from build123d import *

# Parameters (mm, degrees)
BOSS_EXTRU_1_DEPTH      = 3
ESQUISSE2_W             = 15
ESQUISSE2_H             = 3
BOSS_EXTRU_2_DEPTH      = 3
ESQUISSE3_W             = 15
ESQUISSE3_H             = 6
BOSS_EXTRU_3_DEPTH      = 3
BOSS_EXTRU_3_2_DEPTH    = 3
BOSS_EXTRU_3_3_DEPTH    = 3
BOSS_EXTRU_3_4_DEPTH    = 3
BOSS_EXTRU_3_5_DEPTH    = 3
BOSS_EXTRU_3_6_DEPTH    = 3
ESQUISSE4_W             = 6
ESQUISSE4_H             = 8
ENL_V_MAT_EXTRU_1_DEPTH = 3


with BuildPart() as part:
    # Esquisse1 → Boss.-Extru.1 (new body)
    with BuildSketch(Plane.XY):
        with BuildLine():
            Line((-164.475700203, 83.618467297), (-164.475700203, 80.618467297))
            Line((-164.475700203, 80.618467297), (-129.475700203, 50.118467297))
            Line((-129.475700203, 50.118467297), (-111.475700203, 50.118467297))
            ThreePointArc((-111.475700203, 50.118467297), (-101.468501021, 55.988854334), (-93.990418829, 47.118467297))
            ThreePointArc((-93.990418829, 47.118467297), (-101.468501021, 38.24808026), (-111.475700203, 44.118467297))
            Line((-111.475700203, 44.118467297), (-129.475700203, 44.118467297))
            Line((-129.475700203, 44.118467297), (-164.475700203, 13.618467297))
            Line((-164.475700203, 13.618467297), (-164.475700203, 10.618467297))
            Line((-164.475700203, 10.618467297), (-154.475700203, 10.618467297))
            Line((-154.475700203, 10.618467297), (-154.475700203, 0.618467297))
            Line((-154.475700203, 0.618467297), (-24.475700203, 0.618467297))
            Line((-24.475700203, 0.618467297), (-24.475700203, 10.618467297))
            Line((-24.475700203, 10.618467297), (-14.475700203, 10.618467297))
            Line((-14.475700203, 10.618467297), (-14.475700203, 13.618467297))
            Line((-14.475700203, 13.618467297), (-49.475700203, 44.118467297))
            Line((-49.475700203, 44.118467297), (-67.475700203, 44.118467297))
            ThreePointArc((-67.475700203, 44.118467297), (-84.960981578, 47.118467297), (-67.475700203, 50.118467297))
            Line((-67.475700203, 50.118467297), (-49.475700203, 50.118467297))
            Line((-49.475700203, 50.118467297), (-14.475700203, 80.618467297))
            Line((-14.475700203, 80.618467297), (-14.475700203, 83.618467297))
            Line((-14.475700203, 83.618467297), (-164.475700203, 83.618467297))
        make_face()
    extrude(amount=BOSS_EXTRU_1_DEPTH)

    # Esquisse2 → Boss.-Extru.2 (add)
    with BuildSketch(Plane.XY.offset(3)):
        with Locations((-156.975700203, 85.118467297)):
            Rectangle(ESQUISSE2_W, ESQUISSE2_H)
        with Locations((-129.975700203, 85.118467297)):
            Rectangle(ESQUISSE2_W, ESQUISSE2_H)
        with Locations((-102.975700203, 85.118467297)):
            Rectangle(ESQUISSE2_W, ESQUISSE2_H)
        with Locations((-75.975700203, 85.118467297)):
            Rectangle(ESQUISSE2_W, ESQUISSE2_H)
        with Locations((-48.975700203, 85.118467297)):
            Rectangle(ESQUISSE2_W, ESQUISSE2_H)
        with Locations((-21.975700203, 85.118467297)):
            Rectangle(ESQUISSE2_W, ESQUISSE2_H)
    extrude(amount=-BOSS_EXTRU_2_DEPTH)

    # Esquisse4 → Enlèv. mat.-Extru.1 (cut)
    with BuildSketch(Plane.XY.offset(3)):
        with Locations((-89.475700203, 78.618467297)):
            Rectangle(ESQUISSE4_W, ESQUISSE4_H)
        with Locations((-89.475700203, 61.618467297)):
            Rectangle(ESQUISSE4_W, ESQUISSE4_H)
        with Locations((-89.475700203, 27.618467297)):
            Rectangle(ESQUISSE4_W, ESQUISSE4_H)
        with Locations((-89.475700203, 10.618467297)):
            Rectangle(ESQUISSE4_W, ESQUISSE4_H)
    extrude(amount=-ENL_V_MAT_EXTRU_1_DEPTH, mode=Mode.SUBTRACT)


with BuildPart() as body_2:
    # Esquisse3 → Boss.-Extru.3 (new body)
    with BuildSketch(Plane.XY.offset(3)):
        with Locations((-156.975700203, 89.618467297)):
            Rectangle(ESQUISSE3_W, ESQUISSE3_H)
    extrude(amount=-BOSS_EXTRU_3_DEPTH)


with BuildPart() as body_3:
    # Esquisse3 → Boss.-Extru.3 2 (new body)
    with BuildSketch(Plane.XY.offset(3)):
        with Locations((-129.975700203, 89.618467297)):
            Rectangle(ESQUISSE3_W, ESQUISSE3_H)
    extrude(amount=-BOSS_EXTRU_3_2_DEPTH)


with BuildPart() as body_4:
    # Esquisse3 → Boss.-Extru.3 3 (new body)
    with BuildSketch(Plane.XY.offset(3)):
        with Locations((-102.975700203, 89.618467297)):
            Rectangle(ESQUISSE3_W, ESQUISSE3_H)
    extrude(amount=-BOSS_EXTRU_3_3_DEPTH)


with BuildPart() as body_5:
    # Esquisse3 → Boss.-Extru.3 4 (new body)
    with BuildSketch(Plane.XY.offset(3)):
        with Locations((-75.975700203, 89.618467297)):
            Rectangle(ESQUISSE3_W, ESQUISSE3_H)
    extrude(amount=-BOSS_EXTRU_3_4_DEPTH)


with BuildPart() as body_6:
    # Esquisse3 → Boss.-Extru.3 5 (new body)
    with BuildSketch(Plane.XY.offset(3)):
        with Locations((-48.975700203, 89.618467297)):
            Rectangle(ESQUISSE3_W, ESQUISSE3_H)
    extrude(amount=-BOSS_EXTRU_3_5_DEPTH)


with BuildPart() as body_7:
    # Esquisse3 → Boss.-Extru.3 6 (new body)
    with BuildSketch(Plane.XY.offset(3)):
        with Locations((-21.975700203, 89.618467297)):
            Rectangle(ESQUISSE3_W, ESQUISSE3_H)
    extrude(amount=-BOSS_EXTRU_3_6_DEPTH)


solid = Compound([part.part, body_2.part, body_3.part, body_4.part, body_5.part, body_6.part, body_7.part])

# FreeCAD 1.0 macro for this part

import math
import FreeCAD as App
import Part
import Sketcher

V = App.Vector
Q = App.Units.Quantity


def add_polygon(sketch, points):
    """Adds a closed chain of lines whose ends are joined by coincident constraints."""
    first, n = sketch.GeometryCount, len(points)
    for a, b in zip(points, points[1:] + points[:1]):
        sketch.addGeometry(Part.LineSegment(App.Vector(*a, 0), App.Vector(*b, 0)), False)
    for i in range(n):
        sketch.addConstraint(Sketcher.Constraint("Coincident", first + i, 2, first + (i + 1) % n, 1))

doc = App.newDocument("Part")
body = doc.addObject("PartDesign::Body", "Body")

# Sketch on XY plane
sketch1 = body.newObject("Sketcher::SketchObject", "Sketch")
sketch1.AttachmentSupport = (doc.getObject("XY_Plane"), [""])
sketch1.MapMode = "FlatFace"
sketch1.addGeometry(Part.LineSegment(V(-164.5, 83.6, 0), V(-164.5, 80.6, 0)), False)
sketch1.addGeometry(Part.LineSegment(V(-164.5, 80.6, 0), V(-129.5, 50.1, 0)), False)
sketch1.addGeometry(Part.LineSegment(V(-129.5, 50.1, 0), V(-111.5, 50.1, 0)), False)
sketch1.addGeometry(Part.ArcOfCircle(Part.Circle(V(-103, 47.1, 0), V(0, 0, 1), 9), math.radians(0), math.radians(161)), False)
sketch1.addGeometry(Part.ArcOfCircle(Part.Circle(V(-103, 47.1, 0), V(0, 0, 1), 9), math.radians(-161), math.radians(0)), False)
sketch1.addGeometry(Part.LineSegment(V(-111.5, 44.1, 0), V(-129.5, 44.1, 0)), False)
sketch1.addGeometry(Part.LineSegment(V(-129.5, 44.1, 0), V(-164.5, 13.6, 0)), False)
sketch1.addGeometry(Part.LineSegment(V(-164.5, 13.6, 0), V(-164.5, 10.6, 0)), False)
sketch1.addGeometry(Part.LineSegment(V(-164.5, 10.6, 0), V(-154.5, 10.6, 0)), False)
sketch1.addGeometry(Part.LineSegment(V(-154.5, 10.6, 0), V(-154.5, 0.6, 0)), False)
sketch1.addGeometry(Part.LineSegment(V(-154.5, 0.6, 0), V(-24.5, 0.6, 0)), False)
sketch1.addGeometry(Part.LineSegment(V(-24.5, 0.6, 0), V(-24.5, 10.6, 0)), False)
sketch1.addGeometry(Part.LineSegment(V(-24.5, 10.6, 0), V(-14.5, 10.6, 0)), False)
sketch1.addGeometry(Part.LineSegment(V(-14.5, 10.6, 0), V(-14.5, 13.6, 0)), False)
sketch1.addGeometry(Part.LineSegment(V(-14.5, 13.6, 0), V(-49.5, 44.1, 0)), False)
sketch1.addGeometry(Part.LineSegment(V(-49.5, 44.1, 0), V(-67.5, 44.1, 0)), False)
sketch1.addGeometry(Part.ArcOfCircle(Part.Circle(V(-76, 47.1, 0), V(0, 0, 1), 9), math.radians(19), math.radians(341)), False)
sketch1.addGeometry(Part.LineSegment(V(-67.5, 50.1, 0), V(-49.5, 50.1, 0)), False)
sketch1.addGeometry(Part.LineSegment(V(-49.5, 50.1, 0), V(-14.5, 80.6, 0)), False)
sketch1.addGeometry(Part.LineSegment(V(-14.5, 80.6, 0), V(-14.5, 83.6, 0)), False)
sketch1.addGeometry(Part.LineSegment(V(-14.5, 83.6, 0), V(-164.5, 83.6, 0)), False)
sketch1.addConstraint(Sketcher.Constraint("Coincident", 0, 2, 1, 1))
sketch1.addConstraint(Sketcher.Constraint("Coincident", 1, 2, 2, 1))
sketch1.addConstraint(Sketcher.Constraint("Coincident", 2, 2, 3, 2))
sketch1.addConstraint(Sketcher.Constraint("Tangent", 3, 1, 4, 2))
sketch1.addConstraint(Sketcher.Constraint("Coincident", 4, 1, 5, 1))
sketch1.addConstraint(Sketcher.Constraint("Coincident", 5, 2, 6, 1))
sketch1.addConstraint(Sketcher.Constraint("Coincident", 6, 2, 7, 1))
sketch1.addConstraint(Sketcher.Constraint("Coincident", 7, 2, 8, 1))
sketch1.addConstraint(Sketcher.Constraint("Coincident", 8, 2, 9, 1))
sketch1.addConstraint(Sketcher.Constraint("Coincident", 9, 2, 10, 1))
sketch1.addConstraint(Sketcher.Constraint("Coincident", 10, 2, 11, 1))
sketch1.addConstraint(Sketcher.Constraint("Coincident", 11, 2, 12, 1))
sketch1.addConstraint(Sketcher.Constraint("Coincident", 12, 2, 13, 1))
sketch1.addConstraint(Sketcher.Constraint("Coincident", 13, 2, 14, 1))
sketch1.addConstraint(Sketcher.Constraint("Coincident", 14, 2, 15, 1))
sketch1.addConstraint(Sketcher.Constraint("Coincident", 15, 2, 16, 2))
sketch1.addConstraint(Sketcher.Constraint("Coincident", 16, 1, 17, 1))
sketch1.addConstraint(Sketcher.Constraint("Coincident", 17, 2, 18, 1))
sketch1.addConstraint(Sketcher.Constraint("Coincident", 18, 2, 19, 1))
sketch1.addConstraint(Sketcher.Constraint("Coincident", 19, 2, 20, 1))
sketch1.addConstraint(Sketcher.Constraint("Coincident", 20, 2, 0, 1))
sketch1.addConstraint(Sketcher.Constraint("Vertical", 0))
sketch1.addConstraint(Sketcher.Constraint("Horizontal", 2))
sketch1.addConstraint(Sketcher.Constraint("Horizontal", 5))
sketch1.addConstraint(Sketcher.Constraint("Vertical", 7))
sketch1.addConstraint(Sketcher.Constraint("Horizontal", 8))
sketch1.addConstraint(Sketcher.Constraint("Vertical", 9))
sketch1.addConstraint(Sketcher.Constraint("Horizontal", 10))
sketch1.addConstraint(Sketcher.Constraint("Vertical", 11))
sketch1.addConstraint(Sketcher.Constraint("Horizontal", 12))
sketch1.addConstraint(Sketcher.Constraint("Vertical", 13))
sketch1.addConstraint(Sketcher.Constraint("Horizontal", 15))
sketch1.addConstraint(Sketcher.Constraint("Horizontal", 17))
sketch1.addConstraint(Sketcher.Constraint("Vertical", 19))
sketch1.addConstraint(Sketcher.Constraint("Horizontal", 20))
sketch1.addConstraint(Sketcher.Constraint("Equal", 3, 4))
sketch1.addConstraint(Sketcher.Constraint("Equal", 4, 16))
sketch1.addConstraint(Sketcher.Constraint("Parallel", 1, 14))
sketch1.addConstraint(Sketcher.Constraint("Parallel", 6, 18))
sketch1.addConstraint(Sketcher.Constraint("Horizontal", 4, 3, 16, 3))
sketch1.addConstraint(Sketcher.Constraint("Horizontal", 16, 3, 3, 1))
sketch1.addConstraint(Sketcher.Constraint("Horizontal", 8, 2, 11, 2))
sketch1.addConstraint(Sketcher.Constraint("Horizontal", 6, 2, 13, 2))
sketch1.addConstraint(Sketcher.Constraint("Horizontal", 5, 2, 14, 2))
sketch1.addConstraint(Sketcher.Constraint("Horizontal", 2, 2, 16, 1))
sketch1.addConstraint(Sketcher.Constraint("Horizontal", 0, 2, 18, 2))
sketch1.addConstraint(Sketcher.Constraint("Vertical", 2, 2, 4, 1))
sketch1.addConstraint(Sketcher.Constraint("Vertical", 1, 2, 5, 2))
sketch1.addConstraint(Sketcher.Constraint("Vertical", 0, 2, 6, 2))
sketch1.addConstraint(Sketcher.Constraint("Vertical", 14, 2, 17, 2))
sketch1.addConstraint(Sketcher.Constraint("Vertical", 13, 2, 18, 2))
sketch1.addConstraint(Sketcher.Constraint("Equal", 8, 12))
sketch1.addConstraint(Sketcher.Constraint("Equal", 5, 15))
sketch1.addConstraint(Sketcher.Constraint("Equal", 0, 7))
sketch1.addConstraint(Sketcher.Constraint("Equal", 12, 9))
sketch1.addConstraint(Sketcher.Constraint("Radius", 3, Q("9 mm")))
sketch1.addConstraint(Sketcher.Constraint("DistanceX", 2, 1, 2, 2, Q("18 mm")))
sketch1.addConstraint(Sketcher.Constraint("DistanceX", 8, 1, 8, 2, Q("10 mm")))
sketch1.addConstraint(Sketcher.Constraint("DistanceX", 10, 1, 10, 2, Q("130 mm")))
sketch1.addConstraint(Sketcher.Constraint("DistanceY", 0, 2, 0, 1, Q("3 mm")))
sketch1.addConstraint(Sketcher.Constraint("DistanceY", 3, 3, 1, 2, Q("3 mm")))
sketch1.addConstraint(Sketcher.Constraint("DistanceX", 0, 2, 1, 2, Q("35 mm")))
sketch1.addConstraint(Sketcher.Constraint("DistanceY", 6, 2, 0, 2, Q("67 mm")))
sketch1.addConstraint(Sketcher.Constraint("DistanceX", 0, 2, -1, 1, Q("164.4757 mm")))
sketch1.addConstraint(Sketcher.Constraint("DistanceY", -1, 1, 3, 3, Q("47.118467 mm")))
pad1 = body.newObject("PartDesign::Pad", "Pad")
pad1.Profile = sketch1
pad1.Length = 3

# Sketch on XY plane
sketch2 = body.newObject("Sketcher::SketchObject", "Sketch001")
sketch2.AttachmentSupport = (doc.getObject("XY_Plane"), [""])
sketch2.MapMode = "FlatFace"
sketch2.AttachmentOffset = App.Placement(V(0, 0, 3), App.Rotation())
add_polygon(sketch2, [(-164.5, 86.6), (-164.5, 83.6), (-149.5, 83.6), (-149.5, 86.6)])  # lines 0-3
add_polygon(sketch2, [(-137.5, 86.6), (-137.5, 83.6), (-122.5, 83.6), (-122.5, 86.6)])  # lines 4-7
add_polygon(sketch2, [(-110.5, 86.6), (-110.5, 83.6), (-95.5, 83.6), (-95.5, 86.6)])  # lines 8-11
add_polygon(sketch2, [(-83.5, 86.6), (-83.5, 83.6), (-68.5, 83.6), (-68.5, 86.6)])  # lines 12-15
add_polygon(sketch2, [(-56.5, 86.6), (-56.5, 83.6), (-41.5, 83.6), (-41.5, 86.6)])  # lines 16-19
add_polygon(sketch2, [(-29.5, 86.6), (-29.5, 83.6), (-14.5, 83.6), (-14.5, 86.6)])  # lines 20-23
sketch2.addConstraint(Sketcher.Constraint("Vertical", 0))
sketch2.addConstraint(Sketcher.Constraint("Horizontal", 1))
sketch2.addConstraint(Sketcher.Constraint("Vertical", 2))
sketch2.addConstraint(Sketcher.Constraint("Horizontal", 3))
sketch2.addConstraint(Sketcher.Constraint("Vertical", 4))
sketch2.addConstraint(Sketcher.Constraint("Horizontal", 5))
sketch2.addConstraint(Sketcher.Constraint("Vertical", 6))
sketch2.addConstraint(Sketcher.Constraint("Horizontal", 7))
sketch2.addConstraint(Sketcher.Constraint("Vertical", 8))
sketch2.addConstraint(Sketcher.Constraint("Horizontal", 9))
sketch2.addConstraint(Sketcher.Constraint("Vertical", 10))
sketch2.addConstraint(Sketcher.Constraint("Horizontal", 11))
sketch2.addConstraint(Sketcher.Constraint("Vertical", 12))
sketch2.addConstraint(Sketcher.Constraint("Horizontal", 13))
sketch2.addConstraint(Sketcher.Constraint("Vertical", 14))
sketch2.addConstraint(Sketcher.Constraint("Horizontal", 15))
sketch2.addConstraint(Sketcher.Constraint("Vertical", 16))
sketch2.addConstraint(Sketcher.Constraint("Horizontal", 17))
sketch2.addConstraint(Sketcher.Constraint("Vertical", 18))
sketch2.addConstraint(Sketcher.Constraint("Horizontal", 19))
sketch2.addConstraint(Sketcher.Constraint("Vertical", 20))
sketch2.addConstraint(Sketcher.Constraint("Horizontal", 21))
sketch2.addConstraint(Sketcher.Constraint("Vertical", 22))
sketch2.addConstraint(Sketcher.Constraint("Horizontal", 23))
sketch2.addConstraint(Sketcher.Constraint("Horizontal", 1, 2, 4, 2))
sketch2.addConstraint(Sketcher.Constraint("Horizontal", 3, 2, 6, 2))
sketch2.addConstraint(Sketcher.Constraint("Horizontal", 5, 2, 8, 2))
sketch2.addConstraint(Sketcher.Constraint("Horizontal", 7, 2, 10, 2))
sketch2.addConstraint(Sketcher.Constraint("Horizontal", 9, 2, 12, 2))
sketch2.addConstraint(Sketcher.Constraint("Horizontal", 11, 2, 14, 2))
sketch2.addConstraint(Sketcher.Constraint("Horizontal", 13, 2, 16, 2))
sketch2.addConstraint(Sketcher.Constraint("Horizontal", 15, 2, 18, 2))
sketch2.addConstraint(Sketcher.Constraint("Horizontal", 17, 2, 20, 2))
sketch2.addConstraint(Sketcher.Constraint("Horizontal", 19, 2, 22, 2))
sketch2.addConstraint(Sketcher.Constraint("Equal", 3, 5))
sketch2.addConstraint(Sketcher.Constraint("Equal", 7, 9))
sketch2.addConstraint(Sketcher.Constraint("Equal", 11, 13))
sketch2.addConstraint(Sketcher.Constraint("Equal", 15, 17))
sketch2.addConstraint(Sketcher.Constraint("Equal", 19, 21))
sketch2.addConstraint(Sketcher.Constraint("DistanceX", 1, 1, 1, 2, Q("15 mm")))
sketch2.addConstraint(Sketcher.Constraint("DistanceY", 0, 2, 0, 1, Q("3 mm")))
sketch2.addConstraint(Sketcher.Constraint("DistanceX", 1, 2, 4, 2, Q("12 mm")))
sketch2.addConstraint(Sketcher.Constraint("DistanceX", 5, 2, 8, 2, Q("12 mm")))
sketch2.addConstraint(Sketcher.Constraint("DistanceX", 9, 2, 12, 2, Q("12 mm")))
sketch2.addConstraint(Sketcher.Constraint("DistanceX", 13, 2, 16, 2, Q("12 mm")))
sketch2.addConstraint(Sketcher.Constraint("DistanceX", 17, 2, 20, 2, Q("12 mm")))
sketch2.addConstraint(Sketcher.Constraint("DistanceX", 0, 2, -1, 1, Q("164.4757 mm")))
sketch2.addConstraint(Sketcher.Constraint("DistanceY", -1, 1, 0, 2, Q("83.618467 mm")))
pad2 = body.newObject("PartDesign::Pad", "Pad001")
pad2.Profile = sketch2
pad2.Length = 3
pad2.Reversed = True

# Sketch on XY plane
sketch3 = body.newObject("Sketcher::SketchObject", "Sketch002")
sketch3.AttachmentSupport = (doc.getObject("XY_Plane"), [""])
sketch3.MapMode = "FlatFace"
sketch3.AttachmentOffset = App.Placement(V(0, 0, 3), App.Rotation())
add_polygon(sketch3, [(-92, 83), (-92, 75), (-86, 75), (-86, 83)])  # lines 0-3
add_polygon(sketch3, [(-92, 66), (-92, 58), (-86, 58), (-86, 66)])  # lines 4-7
add_polygon(sketch3, [(-92, 32), (-92, 24), (-86, 24), (-86, 32)])  # lines 8-11
add_polygon(sketch3, [(-92, 15), (-92, 7), (-86, 7), (-86, 15)])  # lines 12-15
sketch3.addConstraint(Sketcher.Constraint("Vertical", 0))
sketch3.addConstraint(Sketcher.Constraint("Horizontal", 1))
sketch3.addConstraint(Sketcher.Constraint("Vertical", 2))
sketch3.addConstraint(Sketcher.Constraint("Horizontal", 3))
sketch3.addConstraint(Sketcher.Constraint("Vertical", 4))
sketch3.addConstraint(Sketcher.Constraint("Horizontal", 5))
sketch3.addConstraint(Sketcher.Constraint("Vertical", 6))
sketch3.addConstraint(Sketcher.Constraint("Horizontal", 7))
sketch3.addConstraint(Sketcher.Constraint("Vertical", 8))
sketch3.addConstraint(Sketcher.Constraint("Horizontal", 9))
sketch3.addConstraint(Sketcher.Constraint("Vertical", 10))
sketch3.addConstraint(Sketcher.Constraint("Horizontal", 11))
sketch3.addConstraint(Sketcher.Constraint("Vertical", 12))
sketch3.addConstraint(Sketcher.Constraint("Horizontal", 13))
sketch3.addConstraint(Sketcher.Constraint("Vertical", 14))
sketch3.addConstraint(Sketcher.Constraint("Horizontal", 15))
sketch3.addConstraint(Sketcher.Constraint("Vertical", 3, 2, 4, 2))
sketch3.addConstraint(Sketcher.Constraint("Vertical", 2, 2, 5, 2))
sketch3.addConstraint(Sketcher.Constraint("Vertical", 7, 2, 8, 2))
sketch3.addConstraint(Sketcher.Constraint("Vertical", 6, 2, 9, 2))
sketch3.addConstraint(Sketcher.Constraint("Vertical", 11, 2, 12, 2))
sketch3.addConstraint(Sketcher.Constraint("Vertical", 10, 2, 13, 2))
sketch3.addConstraint(Sketcher.Constraint("Equal", 2, 4))
sketch3.addConstraint(Sketcher.Constraint("Equal", 6, 8))
sketch3.addConstraint(Sketcher.Constraint("Equal", 10, 12))
sketch3.addConstraint(Sketcher.Constraint("DistanceX", 1, 1, 1, 2, Q("6 mm")))
sketch3.addConstraint(Sketcher.Constraint("DistanceY", 0, 2, 0, 1, Q("8 mm")))
sketch3.addConstraint(Sketcher.Constraint("DistanceY", 4, 2, 0, 2, Q("17 mm")))
sketch3.addConstraint(Sketcher.Constraint("DistanceY", 8, 2, 4, 2, Q("34 mm")))
sketch3.addConstraint(Sketcher.Constraint("DistanceY", 12, 2, 8, 2, Q("17 mm")))
sketch3.addConstraint(Sketcher.Constraint("DistanceX", 0, 2, -1, 1, Q("92.4757 mm")))
sketch3.addConstraint(Sketcher.Constraint("DistanceY", -1, 1, 0, 2, Q("74.618467 mm")))
pocket1 = body.newObject("PartDesign::Pocket", "Pocket")
pocket1.Profile = sketch3
pocket1.Length = 3
body2 = doc.addObject("PartDesign::Body", "Body001")

# Sketch on XY plane
sketch4 = body2.newObject("Sketcher::SketchObject", "Sketch003")
sketch4.AttachmentSupport = (doc.getObject("XY_Plane001"), [""])
sketch4.MapMode = "FlatFace"
sketch4.AttachmentOffset = App.Placement(V(0, 0, 3), App.Rotation())
add_polygon(sketch4, [(-164, 93), (-164, 87), (-149, 87), (-149, 93)])  # lines 0-3
sketch4.addConstraint(Sketcher.Constraint("Vertical", 0))
sketch4.addConstraint(Sketcher.Constraint("Horizontal", 1))
sketch4.addConstraint(Sketcher.Constraint("Vertical", 2))
sketch4.addConstraint(Sketcher.Constraint("Horizontal", 3))
sketch4.addConstraint(Sketcher.Constraint("DistanceX", 1, 1, 1, 2, Q("15 mm")))
sketch4.addConstraint(Sketcher.Constraint("DistanceY", 0, 2, 0, 1, Q("6 mm")))
sketch4.addConstraint(Sketcher.Constraint("DistanceX", 0, 2, -1, 1, Q("164.4757 mm")))
sketch4.addConstraint(Sketcher.Constraint("DistanceY", -1, 1, 0, 2, Q("86.618467 mm")))
pad3 = body2.newObject("PartDesign::Pad", "Pad002")
pad3.Profile = sketch4
pad3.Length = 3
pad3.Reversed = True
body3 = doc.addObject("PartDesign::Body", "Body002")

# Sketch on XY plane
sketch5 = body3.newObject("Sketcher::SketchObject", "Sketch004")
sketch5.AttachmentSupport = (doc.getObject("XY_Plane002"), [""])
sketch5.MapMode = "FlatFace"
sketch5.AttachmentOffset = App.Placement(V(0, 0, 3), App.Rotation())
add_polygon(sketch5, [(-137, 93), (-137, 87), (-122, 87), (-122, 93)])  # lines 0-3
sketch5.addConstraint(Sketcher.Constraint("Vertical", 0))
sketch5.addConstraint(Sketcher.Constraint("Horizontal", 1))
sketch5.addConstraint(Sketcher.Constraint("Vertical", 2))
sketch5.addConstraint(Sketcher.Constraint("Horizontal", 3))
sketch5.addConstraint(Sketcher.Constraint("DistanceX", 1, 1, 1, 2, Q("15 mm")))
sketch5.addConstraint(Sketcher.Constraint("DistanceY", 0, 2, 0, 1, Q("6 mm")))
sketch5.addConstraint(Sketcher.Constraint("DistanceX", 0, 2, -1, 1, Q("137.4757 mm")))
sketch5.addConstraint(Sketcher.Constraint("DistanceY", -1, 1, 0, 2, Q("86.618467 mm")))
pad4 = body3.newObject("PartDesign::Pad", "Pad003")
pad4.Profile = sketch5
pad4.Length = 3
pad4.Reversed = True
body4 = doc.addObject("PartDesign::Body", "Body003")

# Sketch on XY plane
sketch6 = body4.newObject("Sketcher::SketchObject", "Sketch005")
sketch6.AttachmentSupport = (doc.getObject("XY_Plane003"), [""])
sketch6.MapMode = "FlatFace"
sketch6.AttachmentOffset = App.Placement(V(0, 0, 3), App.Rotation())
add_polygon(sketch6, [(-110, 93), (-110, 87), (-95, 87), (-95, 93)])  # lines 0-3
sketch6.addConstraint(Sketcher.Constraint("Vertical", 0))
sketch6.addConstraint(Sketcher.Constraint("Horizontal", 1))
sketch6.addConstraint(Sketcher.Constraint("Vertical", 2))
sketch6.addConstraint(Sketcher.Constraint("Horizontal", 3))
sketch6.addConstraint(Sketcher.Constraint("DistanceX", 1, 1, 1, 2, Q("15 mm")))
sketch6.addConstraint(Sketcher.Constraint("DistanceY", 0, 2, 0, 1, Q("6 mm")))
sketch6.addConstraint(Sketcher.Constraint("DistanceX", 0, 2, -1, 1, Q("110.4757 mm")))
sketch6.addConstraint(Sketcher.Constraint("DistanceY", -1, 1, 0, 2, Q("86.618467 mm")))
pad5 = body4.newObject("PartDesign::Pad", "Pad004")
pad5.Profile = sketch6
pad5.Length = 3
pad5.Reversed = True
body5 = doc.addObject("PartDesign::Body", "Body004")

# Sketch on XY plane
sketch7 = body5.newObject("Sketcher::SketchObject", "Sketch006")
sketch7.AttachmentSupport = (doc.getObject("XY_Plane004"), [""])
sketch7.MapMode = "FlatFace"
sketch7.AttachmentOffset = App.Placement(V(0, 0, 3), App.Rotation())
add_polygon(sketch7, [(-83, 93), (-83, 87), (-68, 87), (-68, 93)])  # lines 0-3
sketch7.addConstraint(Sketcher.Constraint("Vertical", 0))
sketch7.addConstraint(Sketcher.Constraint("Horizontal", 1))
sketch7.addConstraint(Sketcher.Constraint("Vertical", 2))
sketch7.addConstraint(Sketcher.Constraint("Horizontal", 3))
sketch7.addConstraint(Sketcher.Constraint("DistanceX", 1, 1, 1, 2, Q("15 mm")))
sketch7.addConstraint(Sketcher.Constraint("DistanceY", 0, 2, 0, 1, Q("6 mm")))
sketch7.addConstraint(Sketcher.Constraint("DistanceX", 0, 2, -1, 1, Q("83.4757 mm")))
sketch7.addConstraint(Sketcher.Constraint("DistanceY", -1, 1, 0, 2, Q("86.618467 mm")))
pad6 = body5.newObject("PartDesign::Pad", "Pad005")
pad6.Profile = sketch7
pad6.Length = 3
pad6.Reversed = True
body6 = doc.addObject("PartDesign::Body", "Body005")

# Sketch on XY plane
sketch8 = body6.newObject("Sketcher::SketchObject", "Sketch007")
sketch8.AttachmentSupport = (doc.getObject("XY_Plane005"), [""])
sketch8.MapMode = "FlatFace"
sketch8.AttachmentOffset = App.Placement(V(0, 0, 3), App.Rotation())
add_polygon(sketch8, [(-56, 93), (-56, 87), (-41, 87), (-41, 93)])  # lines 0-3
sketch8.addConstraint(Sketcher.Constraint("Vertical", 0))
sketch8.addConstraint(Sketcher.Constraint("Horizontal", 1))
sketch8.addConstraint(Sketcher.Constraint("Vertical", 2))
sketch8.addConstraint(Sketcher.Constraint("Horizontal", 3))
sketch8.addConstraint(Sketcher.Constraint("DistanceX", 1, 1, 1, 2, Q("15 mm")))
sketch8.addConstraint(Sketcher.Constraint("DistanceY", 0, 2, 0, 1, Q("6 mm")))
sketch8.addConstraint(Sketcher.Constraint("DistanceX", 0, 2, -1, 1, Q("56.4757 mm")))
sketch8.addConstraint(Sketcher.Constraint("DistanceY", -1, 1, 0, 2, Q("86.618467 mm")))
pad7 = body6.newObject("PartDesign::Pad", "Pad006")
pad7.Profile = sketch8
pad7.Length = 3
pad7.Reversed = True
body7 = doc.addObject("PartDesign::Body", "Body006")

# Sketch on XY plane
sketch9 = body7.newObject("Sketcher::SketchObject", "Sketch008")
sketch9.AttachmentSupport = (doc.getObject("XY_Plane006"), [""])
sketch9.MapMode = "FlatFace"
sketch9.AttachmentOffset = App.Placement(V(0, 0, 3), App.Rotation())
add_polygon(sketch9, [(-29, 93), (-29, 87), (-14, 87), (-14, 93)])  # lines 0-3
sketch9.addConstraint(Sketcher.Constraint("Vertical", 0))
sketch9.addConstraint(Sketcher.Constraint("Horizontal", 1))
sketch9.addConstraint(Sketcher.Constraint("Vertical", 2))
sketch9.addConstraint(Sketcher.Constraint("Horizontal", 3))
sketch9.addConstraint(Sketcher.Constraint("DistanceX", 1, 1, 1, 2, Q("15 mm")))
sketch9.addConstraint(Sketcher.Constraint("DistanceY", 0, 2, 0, 1, Q("6 mm")))
sketch9.addConstraint(Sketcher.Constraint("DistanceX", 0, 2, -1, 1, Q("29.4757 mm")))
sketch9.addConstraint(Sketcher.Constraint("DistanceY", -1, 1, 0, 2, Q("86.618467 mm")))
pad8 = body7.newObject("PartDesign::Pad", "Pad007")
pad8.Profile = sketch9
pad8.Length = 3
pad8.Reversed = True

doc.recompute()
